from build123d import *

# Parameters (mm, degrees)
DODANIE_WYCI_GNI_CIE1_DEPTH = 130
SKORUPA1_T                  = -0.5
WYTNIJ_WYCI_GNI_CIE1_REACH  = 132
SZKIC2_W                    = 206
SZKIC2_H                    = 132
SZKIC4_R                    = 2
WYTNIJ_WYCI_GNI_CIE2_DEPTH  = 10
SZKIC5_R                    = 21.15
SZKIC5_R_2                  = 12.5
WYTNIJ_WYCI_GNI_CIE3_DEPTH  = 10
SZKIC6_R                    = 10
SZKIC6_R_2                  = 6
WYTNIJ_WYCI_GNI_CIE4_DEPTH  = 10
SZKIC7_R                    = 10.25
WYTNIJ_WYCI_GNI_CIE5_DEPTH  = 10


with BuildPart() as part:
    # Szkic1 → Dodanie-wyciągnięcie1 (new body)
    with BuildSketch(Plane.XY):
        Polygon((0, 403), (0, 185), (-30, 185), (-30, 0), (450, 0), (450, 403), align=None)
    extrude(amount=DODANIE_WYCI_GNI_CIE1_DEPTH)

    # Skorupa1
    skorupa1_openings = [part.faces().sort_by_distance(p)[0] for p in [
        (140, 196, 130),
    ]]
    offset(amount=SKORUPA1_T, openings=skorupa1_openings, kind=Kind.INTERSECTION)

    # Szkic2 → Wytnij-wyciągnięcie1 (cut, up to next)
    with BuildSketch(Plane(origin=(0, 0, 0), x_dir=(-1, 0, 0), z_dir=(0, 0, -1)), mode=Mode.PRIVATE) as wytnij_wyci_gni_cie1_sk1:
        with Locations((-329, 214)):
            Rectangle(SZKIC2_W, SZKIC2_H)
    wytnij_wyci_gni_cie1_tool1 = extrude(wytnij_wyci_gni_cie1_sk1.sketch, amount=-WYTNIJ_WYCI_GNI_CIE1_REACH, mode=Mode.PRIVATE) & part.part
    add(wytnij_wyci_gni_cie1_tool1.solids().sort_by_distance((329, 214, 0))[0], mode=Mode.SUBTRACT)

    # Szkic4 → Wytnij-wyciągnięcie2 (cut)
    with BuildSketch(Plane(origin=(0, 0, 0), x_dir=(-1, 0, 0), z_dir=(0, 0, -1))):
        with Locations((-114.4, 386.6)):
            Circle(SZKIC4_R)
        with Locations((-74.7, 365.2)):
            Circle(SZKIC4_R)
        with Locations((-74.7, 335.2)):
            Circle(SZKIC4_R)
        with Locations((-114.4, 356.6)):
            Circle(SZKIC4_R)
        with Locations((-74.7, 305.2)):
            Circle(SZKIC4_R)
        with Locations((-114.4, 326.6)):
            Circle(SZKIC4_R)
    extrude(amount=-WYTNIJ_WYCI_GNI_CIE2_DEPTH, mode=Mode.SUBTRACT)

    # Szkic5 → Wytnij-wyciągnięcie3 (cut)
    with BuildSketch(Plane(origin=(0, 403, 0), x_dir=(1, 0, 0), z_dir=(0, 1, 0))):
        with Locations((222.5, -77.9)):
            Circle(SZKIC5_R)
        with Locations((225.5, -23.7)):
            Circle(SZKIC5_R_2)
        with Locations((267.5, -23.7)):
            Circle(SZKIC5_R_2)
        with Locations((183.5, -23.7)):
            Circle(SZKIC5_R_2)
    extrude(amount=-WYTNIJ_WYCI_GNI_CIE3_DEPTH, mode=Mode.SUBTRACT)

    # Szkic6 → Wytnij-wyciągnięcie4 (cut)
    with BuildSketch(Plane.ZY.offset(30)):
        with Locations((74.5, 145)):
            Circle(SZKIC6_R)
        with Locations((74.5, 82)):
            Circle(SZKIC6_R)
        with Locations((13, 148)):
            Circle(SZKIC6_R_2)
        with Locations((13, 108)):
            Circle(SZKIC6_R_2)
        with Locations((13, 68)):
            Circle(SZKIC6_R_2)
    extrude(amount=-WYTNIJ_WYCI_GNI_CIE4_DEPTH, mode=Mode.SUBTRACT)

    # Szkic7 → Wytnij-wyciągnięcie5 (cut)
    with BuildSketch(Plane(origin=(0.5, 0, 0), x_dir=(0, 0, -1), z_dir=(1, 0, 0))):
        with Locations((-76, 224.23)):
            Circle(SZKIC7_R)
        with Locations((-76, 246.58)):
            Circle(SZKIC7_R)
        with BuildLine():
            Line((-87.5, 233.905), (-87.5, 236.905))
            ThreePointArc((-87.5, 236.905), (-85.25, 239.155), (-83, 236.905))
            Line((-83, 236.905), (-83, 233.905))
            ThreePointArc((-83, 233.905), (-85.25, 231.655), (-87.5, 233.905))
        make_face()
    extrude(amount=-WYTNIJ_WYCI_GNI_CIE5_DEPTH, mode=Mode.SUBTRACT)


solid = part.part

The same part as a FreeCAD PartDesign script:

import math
import FreeCAD as App
import Part
import Sketcher
from FreeCAD import Vector
Q = App.Units.Quantity


def faces_at(feature, points):
    """Names of the faces that lie closest to the given points."""
    faces = feature.Shape.Faces
    near = lambda p: min(range(len(faces)), key=lambda i: faces[i].distToShape(Part.Vertex(*p))[0])
    return sorted({f"Face{near(p) + 1}" for p in points})

doc = App.newDocument("Part")
body = doc.addObject("PartDesign::Body", "Body")

# Sketch on XY plane
sketch1 = body.newObject("Sketcher::SketchObject", "Sketch")
sketch1.AttachmentSupport = (doc.getObject("XY_Plane"), [""])
sketch1.MapMode = "FlatFace"
sketch1.addGeometry(Part.LineSegment(Vector(0, 403, 0), Vector(0, 185, 0)), False)
sketch1.addGeometry(Part.LineSegment(Vector(0, 185, 0), Vector(-30, 185, 0)), False)
sketch1.addGeometry(Part.LineSegment(Vector(-30, 185, 0), Vector(-30, 0, 0)), False)
sketch1.addGeometry(Part.LineSegment(Vector(-30, 0, 0), Vector(450, 0, 0)), False)
sketch1.addGeometry(Part.LineSegment(Vector(450, 0, 0), Vector(450, 403, 0)), False)
sketch1.addGeometry(Part.LineSegment(Vector(450, 403, 0), Vector(0, 403, 0)), False)
sketch1.addConstraint(Sketcher.Constraint("Coincident", 0, 2, 1, 1))
sketch1.addConstraint(Sketcher.Constraint("Coincident", 1, 2, 2, 1))
sketch1.addConstraint(Sketcher.Constraint("Coincident", 2, 2, 3, 1))
sketch1.addConstraint(Sketcher.Constraint("Coincident", 3, 2, 4, 1))
sketch1.addConstraint(Sketcher.Constraint("Coincident", 4, 2, 5, 1))
sketch1.addConstraint(Sketcher.Constraint("Coincident", 5, 2, 0, 1))
sketch1.addConstraint(Sketcher.Constraint("Vertical", 0))
sketch1.addConstraint(Sketcher.Constraint("Horizontal", 1))
sketch1.addConstraint(Sketcher.Constraint("Vertical", 2))
sketch1.addConstraint(Sketcher.Constraint("Horizontal", 3))
sketch1.addConstraint(Sketcher.Constraint("Vertical", 4))
sketch1.addConstraint(Sketcher.Constraint("Horizontal", 5))
sketch1.addConstraint(Sketcher.Constraint("PointOnObject", 0, 2, -2))
sketch1.addConstraint(Sketcher.Constraint("PointOnObject", 2, 2, -1))
sketch1.addConstraint(Sketcher.Constraint("DistanceX", 1, 2, 1, 1, Q("30 mm")))
sketch1.addConstraint(Sketcher.Constraint("DistanceX", 3, 1, 3, 2, Q("480 mm")))
sketch1.addConstraint(Sketcher.Constraint("DistanceY", 0, 2, 0, 1, Q("218 mm")))
sketch1.addConstraint(Sketcher.Constraint("DistanceY", 2, 2, 2, 1, Q("185 mm")))
pad1 = body.newObject("PartDesign::Pad", "Pad")
pad1.Profile = sketch1
pad1.Length = 130
doc.recompute()

thickness = body.newObject("PartDesign::Thickness", "Thickness")
thickness.Base = (pad1, faces_at(pad1, [(210, 201.5, 130)]))
thickness.Value = 0.5
thickness.Reversed = True
thickness.Join = "Intersection"

# Sketch on XY plane
sketch2 = body.newObject("Sketcher::SketchObject", "Sketch001")
sketch2.AttachmentSupport = (doc.getObject("XY_Plane"), [""])
sketch2.MapMode = "FlatFace"
sketch2.addGeometry(Part.LineSegment(Vector(432, 280, 0), Vector(432, 148, 0)), False)
sketch2.addGeometry(Part.LineSegment(Vector(432, 148, 0), Vector(226, 148, 0)), False)
sketch2.addGeometry(Part.LineSegment(Vector(226, 148, 0), Vector(226, 280, 0)), False)
sketch2.addGeometry(Part.LineSegment(Vector(226, 280, 0), Vector(432, 280, 0)), False)
sketch2.addConstraint(Sketcher.Constraint("Coincident", 0, 2, 1, 1))
sketch2.addConstraint(Sketcher.Constraint("Coincident", 1, 2, 2, 1))
sketch2.addConstraint(Sketcher.Constraint("Coincident", 2, 2, 3, 1))
sketch2.addConstraint(Sketcher.Constraint("Coincident", 3, 2, 0, 1))
sketch2.addConstraint(Sketcher.Constraint("Vertical", 0))
sketch2.addConstraint(Sketcher.Constraint("Horizontal", 1))
sketch2.addConstraint(Sketcher.Constraint("Vertical", 2))
sketch2.addConstraint(Sketcher.Constraint("Horizontal", 3))
sketch2.addConstraint(Sketcher.Constraint("DistanceX", 1, 2, 1, 1, Q("206 mm")))
sketch2.addConstraint(Sketcher.Constraint("DistanceY", 0, 2, 0, 1, Q("132 mm")))
sketch2.addConstraint(Sketcher.Constraint("DistanceX", -1, 1, 0, 2, Q("432 mm")))
sketch2.addConstraint(Sketcher.Constraint("DistanceY", -1, 1, 0, 2, Q("148 mm")))
pocket1 = body.newObject("PartDesign::Pocket", "Pocket")
pocket1.Profile = sketch2
pocket1.Type = "UpToFirst"
pocket1.Reversed = True

# Sketch on XY plane
sketch3 = body.newObject("Sketcher::SketchObject", "Sketch002")
sketch3.AttachmentSupport = (doc.getObject("XY_Plane"), [""])
sketch3.MapMode = "FlatFace"
sketch3.addGeometry(Part.Circle(Vector(114.4, 386.6, 0), Vector(0, 0, 1), 2), False)
sketch3.addGeometry(Part.Circle(Vector(74.7, 365.2, 0), Vector(0, 0, 1), 2), False)
sketch3.addGeometry(Part.Circle(Vector(74.7, 335.2, 0), Vector(0, 0, 1), 2), False)
sketch3.addGeometry(Part.Circle(Vector(114.4, 356.6, 0), Vector(0, 0, 1), 2), False)
sketch3.addGeometry(Part.Circle(Vector(74.7, 305.2, 0), Vector(0, 0, 1), 2), False)
sketch3.addGeometry(Part.Circle(Vector(114.4, 326.6, 0), Vector(0, 0, 1), 2), False)
sketch3.addConstraint(Sketcher.Constraint("Equal", 0, 1))
sketch3.addConstraint(Sketcher.Constraint("Equal", 1, 2))
sketch3.addConstraint(Sketcher.Constraint("Equal", 2, 3))
sketch3.addConstraint(Sketcher.Constraint("Equal", 3, 4))
sketch3.addConstraint(Sketcher.Constraint("Equal", 4, 5))
sketch3.addConstraint(Sketcher.Constraint("Vertical", 1, 3, 2, 3))
sketch3.addConstraint(Sketcher.Constraint("Vertical", 0, 3, 3, 3))
sketch3.addConstraint(Sketcher.Constraint("Vertical", 2, 3, 4, 3))
sketch3.addConstraint(Sketcher.Constraint("Vertical", 3, 3, 5, 3))
sketch3.addConstraint(Sketcher.Constraint("Diameter", 0, Q("4 mm")))
sketch3.addConstraint(Sketcher.Constraint("DistanceY", 2, 3, 1, 3, Q("30 mm")))
sketch3.addConstraint(Sketcher.Constraint("DistanceY", 3, 3, 0, 3, Q("30 mm")))
sketch3.addConstraint(Sketcher.Constraint("DistanceY", 4, 3, 2, 3, Q("30 mm")))
sketch3.addConstraint(Sketcher.Constraint("DistanceY", 5, 3, 3, 3, Q("30 mm")))
sketch3.addConstraint(Sketcher.Constraint("DistanceX", -1, 1, 0, 3, Q("114.4 mm")))
sketch3.addConstraint(Sketcher.Constraint("DistanceY", -1, 1, 0, 3, Q("386.6 mm")))
sketch3.addConstraint(Sketcher.Constraint("DistanceX", -1, 1, 1, 3, Q("74.7 mm")))
sketch3.addConstraint(Sketcher.Constraint("DistanceY", -1, 1, 1, 3, Q("365.2 mm")))
pocket2 = body.newObject("PartDesign::Pocket", "Pocket001")
pocket2.Profile = sketch3
pocket2.Length = 10
pocket2.Reversed = True

# Sketch on XZ plane
sketch4 = body.newObject("Sketcher::SketchObject", "Sketch003")
sketch4.AttachmentSupport = (doc.getObject("XZ_Plane"), [""])
sketch4.MapMode = "FlatFace"
sketch4.AttachmentOffset = App.Placement(Vector(0, 0, -403), App.Rotation())
sketch4.addGeometry(Part.Circle(Vector(222, 78, 0), Vector(0, 0, 1), 21), False)
sketch4.addGeometry(Part.Circle(Vector(226, 24, 0), Vector(0, 0, 1), 12), False)
sketch4.addGeometry(Part.Circle(Vector(268, 24, 0), Vector(0, 0, 1), 12), False)
sketch4.addGeometry(Part.Circle(Vector(184, 24, 0), Vector(0, 0, 1), 12), False)
sketch4.addConstraint(Sketcher.Constraint("Equal", 1, 2))
sketch4.addConstraint(Sketcher.Constraint("Equal", 2, 3))
sketch4.addConstraint(Sketcher.Constraint("Horizontal", 1, 3, 2, 3))
sketch4.addConstraint(Sketcher.Constraint("Horizontal", 2, 3, 3, 3))
sketch4.addConstraint(Sketcher.Constraint("Diameter", 1, Q("25 mm")))
sketch4.addConstraint(Sketcher.Constraint("Diameter", 0, Q("42.3 mm")))
sketch4.addConstraint(Sketcher.Constraint("DistanceX", 0, 3, 1, 3, Q("3 mm")))
sketch4.addConstraint(Sketcher.Constraint("DistanceX", 1, 3, 2, 3, Q("42 mm")))
sketch4.addConstraint(Sketcher.Constraint("DistanceX", 3, 3, 1, 3, Q("42 mm")))
sketch4.addConstraint(Sketcher.Constraint("DistanceX", -1, 1, 0, 3, Q("222.5 mm")))
sketch4.addConstraint(Sketcher.Constraint("DistanceY", -1, 1, 0, 3, Q("77.9 mm")))
sketch4.addConstraint(Sketcher.Constraint("DistanceY", -1, 1, 1, 3, Q("23.7 mm")))
pocket3 = body.newObject("PartDesign::Pocket", "Pocket002")
pocket3.Profile = sketch4
pocket3.Length = 10
pocket3.Reversed = True

# Sketch on YZ plane
sketch5 = body.newObject("Sketcher::SketchObject", "Sketch004")
sketch5.AttachmentSupport = (doc.getObject("YZ_Plane"), [""])
sketch5.MapMode = "FlatFace"
sketch5.AttachmentOffset = App.Placement(Vector(0, 0, -30), App.Rotation())
sketch5.addGeometry(Part.Circle(Vector(145, 74, 0), Vector(0, 0, 1), 10), False)
sketch5.addGeometry(Part.Circle(Vector(82, 74, 0), Vector(0, 0, 1), 10), False)
sketch5.addGeometry(Part.Circle(Vector(148, 13, 0), Vector(0, 0, 1), 6), False)
sketch5.addGeometry(Part.Circle(Vector(108, 13, 0), Vector(0, 0, 1), 6), False)
sketch5.addGeometry(Part.Circle(Vector(68, 13, 0), Vector(0, 0, 1), 6), False)
sketch5.addConstraint(Sketcher.Constraint("Equal", 0, 1))
sketch5.addConstraint(Sketcher.Constraint("Equal", 2, 3))
sketch5.addConstraint(Sketcher.Constraint("Equal", 3, 4))
sketch5.addConstraint(Sketcher.Constraint("Horizontal", 0, 3, 1, 3))
sketch5.addConstraint(Sketcher.Constraint("Horizontal", 2, 3, 3, 3))
sketch5.addConstraint(Sketcher.Constraint("Horizontal", 3, 3, 4, 3))
sketch5.addConstraint(Sketcher.Constraint("Diameter", 0, Q("20 mm")))
sketch5.addConstraint(Sketcher.Constraint("Diameter", 2, Q("12 mm")))
sketch5.addConstraint(Sketcher.Constraint("DistanceX", -1, 1, 0, 3, Q("145 mm")))
sketch5.addConstraint(Sketcher.Constraint("DistanceX", -1, 1, 1, 3, Q("82 mm")))
sketch5.addConstraint(Sketcher.Constraint("DistanceX", -1, 1, 2, 3, Q("148 mm")))
sketch5.addConstraint(Sketcher.Constraint("DistanceY", -1, 1, 2, 3, Q("13 mm")))
sketch5.addConstraint(Sketcher.Constraint("DistanceX", -1, 1, 3, 3, Q("108 mm")))
sketch5.addConstraint(Sketcher.Constraint("DistanceX", -1, 1, 4, 3, Q("68 mm")))
sketch5.addConstraint(Sketcher.Constraint("DistanceY", -1, 1, 0, 3, Q("74.5 mm")))
pocket4 = body.newObject("PartDesign::Pocket", "Pocket003")
pocket4.Profile = sketch5
pocket4.Length = 10
pocket4.Reversed = True

# Sketch on YZ plane
sketch6 = body.newObject("Sketcher::SketchObject", "Sketch005")
sketch6.AttachmentSupport = (doc.getObject("YZ_Plane"), [""])
sketch6.MapMode = "FlatFace"
sketch6.AttachmentOffset = App.Placement(Vector(0, 0, 0.5), App.Rotation())
sketch6.addGeometry(Part.Circle(Vector(224.2, 76, 0), Vector(0, 0, 1), 10.2), False)
sketch6.addGeometry(Part.Circle(Vector(246.6, 76, 0), Vector(0, 0, 1), 10.2), False)
sketch6.addGeometry(Part.LineSegment(Vector(236.9, 87.5, 0), Vector(233.9, 87.5, 0)), False)
sketch6.addGeometry(Part.ArcOfCircle(Part.Circle(Vector(233.9, 85.2, 0), Vector(0, 0, 1), 2.2), math.radians(90), math.radians(270)), False)
sketch6.addGeometry(Part.LineSegment(Vector(233.9, 83, 0), Vector(236.9, 83, 0)), False)
sketch6.addGeometry(Part.ArcOfCircle(Part.Circle(Vector(236.9, 85.2, 0), Vector(0, 0, 1), 2.2), math.radians(-90), math.radians(90)), False)
sketch6.addConstraint(Sketcher.Constraint("Tangent", 2, 2, 3, 1))
sketch6.addConstraint(Sketcher.Constraint("Tangent", 3, 2, 4, 1))
sketch6.addConstraint(Sketcher.Constraint("Tangent", 4, 2, 5, 1))
sketch6.addConstraint(Sketcher.Constraint("Tangent", 5, 2, 2, 1))
sketch6.addConstraint(Sketcher.Constraint("Horizontal", 2))
sketch6.addConstraint(Sketcher.Constraint("Horizontal", 4))
sketch6.addConstraint(Sketcher.Constraint("Equal", 0, 1))
sketch6.addConstraint(Sketcher.Constraint("Horizontal", 0, 3, 1, 3))
sketch6.addConstraint(Sketcher.Constraint("Diameter", 0, Q("20.5 mm")))
sketch6.addConstraint(Sketcher.Constraint("DistanceX", 2, 2, 2, 1, Q("3 mm")))
sketch6.addConstraint(Sketcher.Constraint("Radius", 3, Q("2.25 mm")))
sketch6.addConstraint(Sketcher.Constraint("DistanceY", -1, 1, 0, 3, Q("76 mm")))
sketch6.addConstraint(Sketcher.Constraint("DistanceY", -1, 1, 3, 2, Q("83 mm")))
sketch6.addConstraint(Sketcher.Constraint("DistanceX", -1, 1, 0, 3, Q("224.23 mm")))
sketch6.addConstraint(Sketcher.Constraint("DistanceX", -1, 1, 1, 3, Q("246.58 mm")))
sketch6.addConstraint(Sketcher.Constraint("DistanceX", -1, 1, 3, 3, Q("233.905 mm")))
pocket5 = body.newObject("PartDesign::Pocket", "Pocket004")
pocket5.Profile = sketch6
pocket5.Length = 10

doc.recompute()
